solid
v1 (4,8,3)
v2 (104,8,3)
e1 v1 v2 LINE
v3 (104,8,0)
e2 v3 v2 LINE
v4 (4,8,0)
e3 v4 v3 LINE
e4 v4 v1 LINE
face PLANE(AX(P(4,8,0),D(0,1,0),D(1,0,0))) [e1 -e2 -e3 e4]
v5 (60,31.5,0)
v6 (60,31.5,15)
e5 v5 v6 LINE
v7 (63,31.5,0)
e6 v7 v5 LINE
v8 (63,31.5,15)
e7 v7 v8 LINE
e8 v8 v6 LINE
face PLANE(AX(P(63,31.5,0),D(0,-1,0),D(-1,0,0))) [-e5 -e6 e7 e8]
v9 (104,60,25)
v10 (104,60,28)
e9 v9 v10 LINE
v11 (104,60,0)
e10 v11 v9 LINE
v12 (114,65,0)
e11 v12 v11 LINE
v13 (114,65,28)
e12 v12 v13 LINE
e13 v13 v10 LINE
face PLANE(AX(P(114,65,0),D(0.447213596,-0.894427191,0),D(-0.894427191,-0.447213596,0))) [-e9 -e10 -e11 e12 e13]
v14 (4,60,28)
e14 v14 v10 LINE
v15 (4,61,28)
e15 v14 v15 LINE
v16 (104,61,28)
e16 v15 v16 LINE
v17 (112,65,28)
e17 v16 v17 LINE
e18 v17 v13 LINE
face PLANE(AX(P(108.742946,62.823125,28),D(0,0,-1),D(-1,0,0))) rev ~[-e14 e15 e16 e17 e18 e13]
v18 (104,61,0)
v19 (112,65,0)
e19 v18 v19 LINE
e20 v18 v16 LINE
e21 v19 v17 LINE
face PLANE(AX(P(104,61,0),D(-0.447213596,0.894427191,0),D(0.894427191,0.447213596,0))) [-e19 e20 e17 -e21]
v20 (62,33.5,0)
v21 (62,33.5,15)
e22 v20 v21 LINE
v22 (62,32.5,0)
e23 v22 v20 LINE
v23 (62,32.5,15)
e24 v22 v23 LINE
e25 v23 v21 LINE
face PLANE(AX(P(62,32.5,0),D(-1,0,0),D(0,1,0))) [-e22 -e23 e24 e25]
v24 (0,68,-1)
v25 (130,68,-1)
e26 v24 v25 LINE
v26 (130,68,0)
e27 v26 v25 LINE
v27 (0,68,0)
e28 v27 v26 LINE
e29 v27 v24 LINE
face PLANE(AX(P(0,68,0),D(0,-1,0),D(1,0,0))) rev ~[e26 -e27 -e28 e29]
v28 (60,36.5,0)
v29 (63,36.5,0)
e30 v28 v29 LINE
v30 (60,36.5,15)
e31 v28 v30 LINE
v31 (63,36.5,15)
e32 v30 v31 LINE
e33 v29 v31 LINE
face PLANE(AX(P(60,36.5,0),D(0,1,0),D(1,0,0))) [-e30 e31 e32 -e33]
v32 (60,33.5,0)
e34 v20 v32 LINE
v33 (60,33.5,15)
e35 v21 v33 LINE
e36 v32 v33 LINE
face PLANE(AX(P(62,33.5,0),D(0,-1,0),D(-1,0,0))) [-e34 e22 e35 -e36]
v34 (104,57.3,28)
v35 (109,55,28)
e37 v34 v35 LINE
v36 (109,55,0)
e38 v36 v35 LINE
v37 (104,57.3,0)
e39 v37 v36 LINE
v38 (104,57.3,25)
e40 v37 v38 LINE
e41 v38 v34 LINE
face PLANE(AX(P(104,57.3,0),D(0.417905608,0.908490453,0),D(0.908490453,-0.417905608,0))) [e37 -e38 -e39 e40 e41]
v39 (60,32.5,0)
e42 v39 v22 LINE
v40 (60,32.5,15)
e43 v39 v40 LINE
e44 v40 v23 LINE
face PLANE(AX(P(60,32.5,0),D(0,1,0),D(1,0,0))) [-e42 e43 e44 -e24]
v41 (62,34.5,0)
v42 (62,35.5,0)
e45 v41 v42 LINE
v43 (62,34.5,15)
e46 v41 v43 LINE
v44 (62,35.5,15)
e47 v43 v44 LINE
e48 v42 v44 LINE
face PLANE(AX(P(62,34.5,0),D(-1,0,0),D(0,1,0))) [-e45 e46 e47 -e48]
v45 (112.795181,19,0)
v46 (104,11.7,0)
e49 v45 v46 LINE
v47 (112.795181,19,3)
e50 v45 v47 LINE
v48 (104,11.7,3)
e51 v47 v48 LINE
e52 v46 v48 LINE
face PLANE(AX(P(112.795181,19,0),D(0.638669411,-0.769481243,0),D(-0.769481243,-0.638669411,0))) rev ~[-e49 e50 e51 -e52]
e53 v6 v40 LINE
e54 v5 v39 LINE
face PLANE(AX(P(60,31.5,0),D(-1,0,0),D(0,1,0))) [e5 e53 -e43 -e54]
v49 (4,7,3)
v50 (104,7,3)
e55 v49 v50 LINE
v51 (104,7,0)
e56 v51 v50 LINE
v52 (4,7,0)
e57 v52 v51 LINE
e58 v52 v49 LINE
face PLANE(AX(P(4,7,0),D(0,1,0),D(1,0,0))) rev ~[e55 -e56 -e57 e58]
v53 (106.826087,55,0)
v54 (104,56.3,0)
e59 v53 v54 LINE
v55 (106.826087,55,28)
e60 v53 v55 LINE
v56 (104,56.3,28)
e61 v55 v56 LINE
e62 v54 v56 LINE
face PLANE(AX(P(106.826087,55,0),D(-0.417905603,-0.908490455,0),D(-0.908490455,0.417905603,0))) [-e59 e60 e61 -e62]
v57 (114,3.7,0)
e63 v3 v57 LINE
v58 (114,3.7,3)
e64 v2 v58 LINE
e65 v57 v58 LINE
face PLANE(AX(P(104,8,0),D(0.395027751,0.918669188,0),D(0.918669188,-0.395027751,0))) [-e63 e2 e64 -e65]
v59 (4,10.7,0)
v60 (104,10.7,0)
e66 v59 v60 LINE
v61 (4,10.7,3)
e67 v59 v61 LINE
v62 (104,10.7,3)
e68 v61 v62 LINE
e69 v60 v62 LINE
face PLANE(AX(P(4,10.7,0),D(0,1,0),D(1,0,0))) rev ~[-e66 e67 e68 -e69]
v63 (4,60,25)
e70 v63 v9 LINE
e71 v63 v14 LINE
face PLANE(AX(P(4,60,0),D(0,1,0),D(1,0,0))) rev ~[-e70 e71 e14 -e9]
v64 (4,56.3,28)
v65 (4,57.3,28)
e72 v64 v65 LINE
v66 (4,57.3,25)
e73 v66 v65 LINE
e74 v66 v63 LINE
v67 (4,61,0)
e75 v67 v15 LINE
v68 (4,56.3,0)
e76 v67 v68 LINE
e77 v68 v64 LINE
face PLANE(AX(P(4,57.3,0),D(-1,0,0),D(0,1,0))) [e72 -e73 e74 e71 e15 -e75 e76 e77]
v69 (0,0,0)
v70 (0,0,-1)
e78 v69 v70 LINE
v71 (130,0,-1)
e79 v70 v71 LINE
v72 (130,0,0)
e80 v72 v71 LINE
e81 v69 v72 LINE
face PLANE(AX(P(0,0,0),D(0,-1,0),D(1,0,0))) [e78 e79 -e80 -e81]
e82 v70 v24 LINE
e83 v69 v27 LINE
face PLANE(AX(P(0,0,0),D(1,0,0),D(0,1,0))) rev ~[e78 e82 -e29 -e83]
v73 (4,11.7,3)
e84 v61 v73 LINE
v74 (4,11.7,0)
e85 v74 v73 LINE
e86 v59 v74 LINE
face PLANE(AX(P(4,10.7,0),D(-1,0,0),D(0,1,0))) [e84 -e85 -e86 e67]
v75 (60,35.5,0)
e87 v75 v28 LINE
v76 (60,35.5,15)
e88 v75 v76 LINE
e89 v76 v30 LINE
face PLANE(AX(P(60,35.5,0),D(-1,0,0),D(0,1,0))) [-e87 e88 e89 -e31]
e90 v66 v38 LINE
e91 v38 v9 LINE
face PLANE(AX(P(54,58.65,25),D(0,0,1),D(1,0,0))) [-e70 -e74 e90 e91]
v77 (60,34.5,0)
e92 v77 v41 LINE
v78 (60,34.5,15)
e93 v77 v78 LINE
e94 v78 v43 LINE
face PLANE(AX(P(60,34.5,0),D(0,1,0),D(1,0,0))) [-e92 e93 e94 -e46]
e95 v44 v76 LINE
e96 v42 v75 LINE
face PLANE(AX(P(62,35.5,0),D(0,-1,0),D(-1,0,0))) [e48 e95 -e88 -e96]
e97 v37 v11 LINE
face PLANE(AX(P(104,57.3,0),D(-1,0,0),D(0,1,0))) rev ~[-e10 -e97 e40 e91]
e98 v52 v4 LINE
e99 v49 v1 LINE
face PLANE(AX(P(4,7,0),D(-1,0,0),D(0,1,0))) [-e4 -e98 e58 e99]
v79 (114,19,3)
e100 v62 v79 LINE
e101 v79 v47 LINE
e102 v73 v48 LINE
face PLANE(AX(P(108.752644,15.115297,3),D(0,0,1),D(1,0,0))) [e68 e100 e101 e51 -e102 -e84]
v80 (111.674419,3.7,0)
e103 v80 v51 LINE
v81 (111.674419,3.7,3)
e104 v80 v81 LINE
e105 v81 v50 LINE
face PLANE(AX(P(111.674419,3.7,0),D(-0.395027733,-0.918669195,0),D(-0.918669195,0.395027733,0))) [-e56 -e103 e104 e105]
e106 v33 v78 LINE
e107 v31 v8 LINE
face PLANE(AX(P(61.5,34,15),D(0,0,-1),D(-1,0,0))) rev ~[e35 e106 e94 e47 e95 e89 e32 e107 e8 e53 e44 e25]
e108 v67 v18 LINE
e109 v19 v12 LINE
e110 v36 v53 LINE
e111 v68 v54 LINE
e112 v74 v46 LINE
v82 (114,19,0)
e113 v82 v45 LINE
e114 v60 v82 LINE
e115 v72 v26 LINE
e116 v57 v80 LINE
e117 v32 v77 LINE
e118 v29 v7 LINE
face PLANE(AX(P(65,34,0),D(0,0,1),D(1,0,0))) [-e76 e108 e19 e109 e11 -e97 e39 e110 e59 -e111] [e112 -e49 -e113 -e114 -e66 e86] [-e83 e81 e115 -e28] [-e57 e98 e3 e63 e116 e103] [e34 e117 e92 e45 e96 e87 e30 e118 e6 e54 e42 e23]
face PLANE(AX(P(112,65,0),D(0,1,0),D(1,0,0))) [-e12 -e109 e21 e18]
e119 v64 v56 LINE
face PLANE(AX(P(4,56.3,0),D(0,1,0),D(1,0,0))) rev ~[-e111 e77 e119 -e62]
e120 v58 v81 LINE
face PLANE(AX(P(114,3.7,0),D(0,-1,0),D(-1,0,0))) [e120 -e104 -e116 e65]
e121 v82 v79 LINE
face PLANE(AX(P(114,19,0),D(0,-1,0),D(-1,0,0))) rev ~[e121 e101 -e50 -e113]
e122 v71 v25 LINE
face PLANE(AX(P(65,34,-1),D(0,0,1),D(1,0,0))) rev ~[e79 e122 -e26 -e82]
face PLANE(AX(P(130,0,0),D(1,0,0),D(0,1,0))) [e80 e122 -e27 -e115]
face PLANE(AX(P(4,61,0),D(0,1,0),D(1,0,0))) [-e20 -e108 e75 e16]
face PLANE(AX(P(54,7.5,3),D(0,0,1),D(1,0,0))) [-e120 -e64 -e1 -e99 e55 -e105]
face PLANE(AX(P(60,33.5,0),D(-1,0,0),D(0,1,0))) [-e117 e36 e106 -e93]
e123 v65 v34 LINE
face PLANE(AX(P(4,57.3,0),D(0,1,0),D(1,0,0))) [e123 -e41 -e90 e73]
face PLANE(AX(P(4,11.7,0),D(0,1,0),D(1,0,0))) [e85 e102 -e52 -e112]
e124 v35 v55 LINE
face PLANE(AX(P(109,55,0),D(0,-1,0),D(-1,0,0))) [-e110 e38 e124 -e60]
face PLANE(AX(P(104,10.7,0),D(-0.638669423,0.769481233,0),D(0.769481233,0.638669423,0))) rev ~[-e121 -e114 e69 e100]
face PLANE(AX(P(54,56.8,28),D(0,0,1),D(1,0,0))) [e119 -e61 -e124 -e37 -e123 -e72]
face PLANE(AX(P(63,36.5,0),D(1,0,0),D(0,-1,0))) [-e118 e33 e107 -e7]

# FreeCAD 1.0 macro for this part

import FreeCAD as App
import Part
import Sketcher
from FreeCAD import Vector

doc = App.newDocument("Part")
body = doc.addObject("PartDesign::Body", "Body")

# Sketch on XY plane
sketch1 = doc.addObject("Sketcher::SketchObject", "Sketch")
body.addObject(sketch1)
sketch1.AttachmentSupport = (doc.XY_Plane, [""])
sketch1.MapMode = "FlatFace"
sketch1.addGeometry([
    Part.LineSegment(Vector(0, 68, 0), Vector(0, 0, 0)),
    Part.LineSegment(Vector(0, 0, 0), Vector(130, 0, 0)),
    Part.LineSegment(Vector(130, 0, 0), Vector(130, 68, 0)),
    Part.LineSegment(Vector(130, 68, 0), Vector(0, 68, 0)),
], False)
sketch1.addConstraint([
    Sketcher.Constraint("Coincident", 0, 2, 1, 1),
    Sketcher.Constraint("Coincident", 1, 2, 2, 1),
    Sketcher.Constraint("Coincident", 2, 2, 3, 1),
    Sketcher.Constraint("Coincident", 3, 2, 0, 1),
    Sketcher.Constraint("Vertical", 0),
    Sketcher.Constraint("Horizontal", 1),
    Sketcher.Constraint("Vertical", 2),
    Sketcher.Constraint("Horizontal", 3),
    Sketcher.Constraint("Coincident", 0, 2, -1, 1),
    Sketcher.Constraint("DistanceX", 1, 1, 1, 2, 130.0),
    Sketcher.Constraint("DistanceY", 0, 2, 0, 1, 68.0),
])
pad1 = doc.addObject("PartDesign::Pad", "Pad")
body.addObject(pad1)
pad1.Profile = sketch1
pad1.Length = 1
pad1.Reversed = True

# Sketch on XY plane
sketch2 = doc.addObject("Sketcher::SketchObject", "Sketch001")
body.addObject(sketch2)
sketch2.AttachmentSupport = (doc.XY_Plane, [""])
sketch2.MapMode = "FlatFace"
sketch2.addGeometry([
    Part.LineSegment(Vector(4, 57.3, 0), Vector(4, 56.3, 0)),
    Part.LineSegment(Vector(4, 56.3, 0), Vector(104, 56.3, 0)),
    Part.LineSegment(Vector(104, 56.3, 0), Vector(104, 57.3, 0)),
    Part.LineSegment(Vector(104, 57.3, 0), Vector(4, 57.3, 0)),
], False)
sketch2.addConstraint([
    Sketcher.Constraint("Coincident", 0, 2, 1, 1),
    Sketcher.Constraint("Coincident", 1, 2, 2, 1),
    Sketcher.Constraint("Coincident", 2, 2, 3, 1),
    Sketcher.Constraint("Coincident", 3, 2, 0, 1),
    Sketcher.Constraint("Vertical", 0),
    Sketcher.Constraint("Horizontal", 1),
    Sketcher.Constraint("Vertical", 2),
    Sketcher.Constraint("Horizontal", 3),
    Sketcher.Constraint("DistanceX", 1, 1, 1, 2, 100.0),
    Sketcher.Constraint("DistanceY", 0, 2, 0, 1, 1.0),
    Sketcher.Constraint("DistanceX", -1, 1, 0, 2, 4.0),
    Sketcher.Constraint("DistanceY", -1, 1, 0, 2, 56.3),
])
pad2 = doc.addObject("PartDesign::Pad", "Pad001")
body.addObject(pad2)
pad2.Profile = sketch2
pad2.Length = 28

# Sketch on XY plane
sketch3 = doc.addObject("Sketcher::SketchObject", "Sketch002")
body.addObject(sketch3)
sketch3.AttachmentSupport = (doc.XY_Plane, [""])
sketch3.MapMode = "FlatFace"
sketch3.addGeometry([
    Part.LineSegment(Vector(4, 61, 0), Vector(4, 60, 0)),
    Part.LineSegment(Vector(4, 60, 0), Vector(104, 60, 0)),
    Part.LineSegment(Vector(104, 60, 0), Vector(104, 61, 0)),
    Part.LineSegment(Vector(104, 61, 0), Vector(4, 61, 0)),
], False)
sketch3.addConstraint([
    Sketcher.Constraint("Coincident", 0, 2, 1, 1),
    Sketcher.Constraint("Coincident", 1, 2, 2, 1),
    Sketcher.Constraint("Coincident", 2, 2, 3, 1),
    Sketcher.Constraint("Coincident", 3, 2, 0, 1),
    Sketcher.Constraint("Vertical", 0),
    Sketcher.Constraint("Horizontal", 1),
    Sketcher.Constraint("Vertical", 2),
    Sketcher.Constraint("Horizontal", 3),
    Sketcher.Constraint("DistanceX", 1, 1, 1, 2, 100.0),
    Sketcher.Constraint("DistanceY", 0, 2, 0, 1, 1.0),
    Sketcher.Constraint("DistanceX", -1, 1, 0, 2, 4.0),
    Sketcher.Constraint("DistanceY", -1, 1, 0, 2, 60.0),
])
pad3 = doc.addObject("PartDesign::Pad", "Pad002")
body.addObject(pad3)
pad3.Profile = sketch3
pad3.Length = 28

# Sketch on XY plane
sketch4 = doc.addObject("Sketcher::SketchObject", "Sketch003")
body.addObject(sketch4)
sketch4.AttachmentSupport = (doc.XY_Plane, [""])
sketch4.MapMode = "FlatFace"
sketch4.addGeometry([
    Part.LineSegment(Vector(112, 65, 0), Vector(104, 61, 0)),  # 0
    Part.LineSegment(Vector(104, 61, 0), Vector(104, 60, 0)),  # 1
    Part.LineSegment(Vector(104, 60, 0), Vector(114, 65, 0)),  # 2
    Part.LineSegment(Vector(114, 65, 0), Vector(112, 65, 0)),  # 3
    Part.LineSegment(Vector(109, 55, 0), Vector(104, 57.3, 0)),  # 4
    Part.LineSegment(Vector(104, 57.3, 0), Vector(104, 56.3, 0)),  # 5
    Part.LineSegment(Vector(104, 56.3, 0), Vector(106.8, 55, 0)),  # 6
    Part.LineSegment(Vector(106.8, 55, 0), Vector(109, 55, 0)),  # 7
], False)
sketch4.addConstraint([
    Sketcher.Constraint("Coincident", 0, 2, 1, 1),
    Sketcher.Constraint("Coincident", 1, 2, 2, 1),
    Sketcher.Constraint("Coincident", 2, 2, 3, 1),
    Sketcher.Constraint("Coincident", 3, 2, 0, 1),
    Sketcher.Constraint("Coincident", 4, 2, 5, 1),
    Sketcher.Constraint("Coincident", 5, 2, 6, 1),
    Sketcher.Constraint("Coincident", 6, 2, 7, 1),
    Sketcher.Constraint("Coincident", 7, 2, 4, 1),
    Sketcher.Constraint("Vertical", 1),
    Sketcher.Constraint("Horizontal", 3),
    Sketcher.Constraint("Vertical", 5),
    Sketcher.Constraint("Horizontal", 7),
    Sketcher.Constraint("Parallel", 0, 2),
    Sketcher.Constraint("Parallel", 4, 6),
    Sketcher.Constraint("Vertical", 1, 2, 4, 2),
    Sketcher.Constraint("Equal", 1, 5),
    Sketcher.Constraint("DistanceX", 3, 2, 3, 1, 2.0),
    Sketcher.Constraint("DistanceY", 1, 2, 1, 1, 1.0),
    Sketcher.Constraint("DistanceX", -1, 1, 0, 2, 104.0),
    Sketcher.Constraint("DistanceY", -1, 1, 0, 2, 61.0),
    Sketcher.Constraint("DistanceX", -1, 1, 2, 2, 114.0),
    Sketcher.Constraint("DistanceY", -1, 1, 6, 2, 55.0),
    Sketcher.Constraint("DistanceX", -1, 1, 7, 2, 109.0),
    Sketcher.Constraint("DistanceY", -1, 1, 4, 2, 57.3),
])
pad4 = doc.addObject("PartDesign::Pad", "Pad003")
body.addObject(pad4)
pad4.Profile = sketch4
pad4.Length = 28

# Sketch on XY plane
sketch5 = doc.addObject("Sketcher::SketchObject", "Sketch004")
body.addObject(sketch5)
sketch5.AttachmentSupport = (doc.XY_Plane, [""])
sketch5.MapMode = "FlatFace"
sketch5.addGeometry([
    Part.LineSegment(Vector(4, 60, 0), Vector(4, 57.3, 0)),
    Part.LineSegment(Vector(4, 57.3, 0), Vector(104, 57.3, 0)),
    Part.LineSegment(Vector(104, 57.3, 0), Vector(104, 60, 0)),
    Part.LineSegment(Vector(104, 60, 0), Vector(4, 60, 0)),
], False)
sketch5.addConstraint([
    Sketcher.Constraint("Coincident", 0, 2, 1, 1),
    Sketcher.Constraint("Coincident", 1, 2, 2, 1),
    Sketcher.Constraint("Coincident", 2, 2, 3, 1),
    Sketcher.Constraint("Coincident", 3, 2, 0, 1),
    Sketcher.Constraint("Vertical", 0),
    Sketcher.Constraint("Horizontal", 1),
    Sketcher.Constraint("Vertical", 2),
    Sketcher.Constraint("Horizontal", 3),
    Sketcher.Constraint("DistanceX", 1, 1, 1, 2, 100.0),
    Sketcher.Constraint("DistanceY", 0, 2, 0, 1, 2.7),
    Sketcher.Constraint("DistanceX", -1, 1, 0, 2, 4.0),
    Sketcher.Constraint("DistanceY", -1, 1, 2, 2, 60.0),
])
pad5 = doc.addObject("PartDesign::Pad", "Pad004")
body.addObject(pad5)
pad5.Profile = sketch5
pad5.Length = 25

# Sketch on XY plane
sketch6 = doc.addObject("Sketcher::SketchObject", "Sketch005")
body.addObject(sketch6)
sketch6.AttachmentSupport = (doc.XY_Plane, [""])
sketch6.MapMode = "FlatFace"
sketch6.addGeometry([
    Part.LineSegment(Vector(4, 8, 0), Vector(4, 7, 0)),
    Part.LineSegment(Vector(4, 7, 0), Vector(104, 7, 0)),
    Part.LineSegment(Vector(104, 7, 0), Vector(104, 8, 0)),
    Part.LineSegment(Vector(104, 8, 0), Vector(4, 8, 0)),
], False)
sketch6.addConstraint([
    Sketcher.Constraint("Coincident", 0, 2, 1, 1),
    Sketcher.Constraint("Coincident", 1, 2, 2, 1),
    Sketcher.Constraint("Coincident", 2, 2, 3, 1),
    Sketcher.Constraint("Coincident", 3, 2, 0, 1),
    Sketcher.Constraint("Vertical", 0),
    Sketcher.Constraint("Horizontal", 1),
    Sketcher.Constraint("Vertical", 2),
    Sketcher.Constraint("Horizontal", 3),
    Sketcher.Constraint("DistanceX", 1, 1, 1, 2, 100.0),
    Sketcher.Constraint("DistanceY", 0, 2, 0, 1, 1.0),
    Sketcher.Constraint("DistanceX", -1, 1, 0, 2, 4.0),
    Sketcher.Constraint("DistanceY", -1, 1, 0, 2, 7.0),
])
pad6 = doc.addObject("PartDesign::Pad", "Pad005")
body.addObject(pad6)
pad6.Profile = sketch6
pad6.Length = 3

# Sketch on XY plane
sketch7 = doc.addObject("Sketcher::SketchObject", "Sketch006")
body.addObject(sketch7)
sketch7.AttachmentSupport = (doc.XY_Plane, [""])
sketch7.MapMode = "FlatFace"
sketch7.addGeometry([
    Part.LineSegment(Vector(4, 11.7, 0), Vector(4, 10.7, 0)),
    Part.LineSegment(Vector(4, 10.7, 0), Vector(104, 10.7, 0)),
    Part.LineSegment(Vector(104, 10.7, 0), Vector(104, 11.7, 0)),
    Part.LineSegment(Vector(104, 11.7, 0), Vector(4, 11.7, 0)),
], False)
sketch7.addConstraint([
    Sketcher.Constraint("Coincident", 0, 2, 1, 1),
    Sketcher.Constraint("Coincident", 1, 2, 2, 1),
    Sketcher.Constraint("Coincident", 2, 2, 3, 1),
    Sketcher.Constraint("Coincident", 3, 2, 0, 1),
    Sketcher.Constraint("Vertical", 0),
    Sketcher.Constraint("Horizontal", 1),
    Sketcher.Constraint("Vertical", 2),
    Sketcher.Constraint("Horizontal", 3),
    Sketcher.Constraint("DistanceX", 1, 1, 1, 2, 100.0),
    Sketcher.Constraint("DistanceY", 0, 2, 0, 1, 1.0),
    Sketcher.Constraint("DistanceX", -1, 1, 0, 2, 4.0),
    Sketcher.Constraint("DistanceY", -1, 1, 0, 2, 10.7),
])
pad7 = doc.addObject("PartDesign::Pad", "Pad006")
body.addObject(pad7)
pad7.Profile = sketch7
pad7.Length = 3

# Sketch on XY plane
sketch8 = doc.addObject("Sketcher::SketchObject", "Sketch007")
body.addObject(sketch8)
sketch8.AttachmentSupport = (doc.XY_Plane, [""])
sketch8.MapMode = "FlatFace"
sketch8.addGeometry([
    Part.LineSegment(Vector(104, 10.7, 0), Vector(114, 19, 0)),  # 0
    Part.LineSegment(Vector(114, 19, 0), Vector(112.8, 19, 0)),  # 1
    Part.LineSegment(Vector(112.8, 19, 0), Vector(104, 11.7, 0)),  # 2
    Part.LineSegment(Vector(104, 11.7, 0), Vector(104, 10.7, 0)),  # 3
    Part.LineSegment(Vector(114, 3.7, 0), Vector(104, 8, 0)),  # 4
    Part.LineSegment(Vector(104, 8, 0), Vector(104, 7, 0)),  # 5
    Part.LineSegment(Vector(104, 7, 0), Vector(111.7, 3.7, 0)),  # 6
    Part.LineSegment(Vector(111.7, 3.7, 0), Vector(114, 3.7, 0)),  # 7
], False)
sketch8.addConstraint([
    Sketcher.Constraint("Coincident", 0, 2, 1, 1),
    Sketcher.Constraint("Coincident", 1, 2, 2, 1),
    Sketcher.Constraint("Coincident", 2, 2, 3, 1),
    Sketcher.Constraint("Coincident", 3, 2, 0, 1),
    Sketcher.Constraint("Coincident", 4, 2, 5, 1),
    Sketcher.Constraint("Coincident", 5, 2, 6, 1),
    Sketcher.Constraint("Coincident", 6, 2, 7, 1),
    Sketcher.Constraint("Coincident", 7, 2, 4, 1),
    Sketcher.Constraint("Horizontal", 1),
    Sketcher.Constraint("Vertical", 3),
    Sketcher.Constraint("Vertical", 5),
    Sketcher.Constraint("Horizontal", 7),
    Sketcher.Constraint("Parallel", 0, 2),
    Sketcher.Constraint("Parallel", 4, 6),
    Sketcher.Constraint("Vertical", 3, 2, 4, 2),
    Sketcher.Constraint("Vertical", 0, 2, 7, 2),
    Sketcher.Constraint("Equal", 3, 5),
    Sketcher.Constraint("DistanceY", 3, 2, 3, 1, 1.0),
    Sketcher.Constraint("DistanceX", -1, 1, 0, 2, 114.0),
    Sketcher.Constraint("DistanceY", -1, 1, 0, 2, 19.0),
    Sketcher.Constraint("DistanceX", -1, 1, 2, 2, 104.0),
    Sketcher.Constraint("DistanceY", -1, 1, 4, 2, 8.0),
    Sketcher.Constraint("DistanceY", 6, 2, 3, 2, 7.0),
    Sketcher.Constraint("DistanceY", -1, 1, 2, 2, 11.7),
])
pad8 = doc.addObject("PartDesign::Pad", "Pad007")
body.addObject(pad8)
pad8.Profile = sketch8
pad8.Length = 3

# Sketch on XY plane
sketch9 = doc.addObject("Sketcher::SketchObject", "Sketch008")
body.addObject(sketch9)
sketch9.AttachmentSupport = (doc.XY_Plane, [""])
sketch9.MapMode = "FlatFace"
sketch9.addGeometry([
    Part.LineSegment(Vector(63, 36.5, 0), Vector(60, 36.5, 0)),  # 0
    Part.LineSegment(Vector(60, 36.5, 0), Vector(60, 35.5, 0)),  # 1
    Part.LineSegment(Vector(60, 35.5, 0), Vector(62, 35.5, 0)),  # 2
    Part.LineSegment(Vector(62, 35.5, 0), Vector(62, 34.5, 0)),  # 3
    Part.LineSegment(Vector(62, 34.5, 0), Vector(60, 34.5, 0)),  # 4
    Part.LineSegment(Vector(60, 34.5, 0), Vector(60, 33.5, 0)),  # 5
    Part.LineSegment(Vector(60, 33.5, 0), Vector(62, 33.5, 0)),  # 6
    Part.LineSegment(Vector(62, 33.5, 0), Vector(62, 32.5, 0)),  # 7
    Part.LineSegment(Vector(62, 32.5, 0), Vector(60, 32.5, 0)),  # 8
    Part.LineSegment(Vector(60, 32.5, 0), Vector(60, 31.5, 0)),  # 9
    Part.LineSegment(Vector(60, 31.5, 0), Vector(63, 31.5, 0)),  # 10
    Part.LineSegment(Vector(63, 31.5, 0), Vector(63, 36.5, 0)),  # 11
], False)
sketch9.addConstraint([
    Sketcher.Constraint("Coincident", 0, 2, 1, 1),
    Sketcher.Constraint("Coincident", 1, 2, 2, 1),
    Sketcher.Constraint("Coincident", 2, 2, 3, 1),
    Sketcher.Constraint("Coincident", 3, 2, 4, 1),
    Sketcher.Constraint("Coincident", 4, 2, 5, 1),
    Sketcher.Constraint("Coincident", 5, 2, 6, 1),
    Sketcher.Constraint("Coincident", 6, 2, 7, 1),
    Sketcher.Constraint("Coincident", 7, 2, 8, 1),
    Sketcher.Constraint("Coincident", 8, 2, 9, 1),
    Sketcher.Constraint("Coincident", 9, 2, 10, 1),
    Sketcher.Constraint("Coincident", 10, 2, 11, 1),
    Sketcher.Constraint("Coincident", 11, 2, 0, 1),
    Sketcher.Constraint("Horizontal", 0),
    Sketcher.Constraint("Vertical", 1),
    Sketcher.Constraint("Horizontal", 2),
    Sketcher.Constraint("Vertical", 3),
    Sketcher.Constraint("Horizontal", 4),
    Sketcher.Constraint("Vertical", 5),
    Sketcher.Constraint("Horizontal", 6),
    Sketcher.Constraint("Vertical", 7),
    Sketcher.Constraint("Horizontal", 8),
    Sketcher.Constraint("Vertical", 9),
    Sketcher.Constraint("Horizontal", 10),
    Sketcher.Constraint("Vertical", 11),
    Sketcher.Constraint("Vertical", 1, 2, 4, 2),
    Sketcher.Constraint("Vertical", 3, 2, 6, 2),
    Sketcher.Constraint("Vertical", 5, 2, 8, 2),
    Sketcher.Constraint("Equal", 1, 3),
    Sketcher.Constraint("Equal", 3, 5),
    Sketcher.Constraint("Equal", 5, 7),
    Sketcher.Constraint("Equal", 7, 9),
    Sketcher.Constraint("DistanceX", 0, 2, 0, 1, 3.0),
    Sketcher.Constraint("DistanceX", 2, 1, 2, 2, 2.0),
    Sketcher.Constraint("DistanceY", 1, 2, 1, 1, 1.0),
    Sketcher.Constraint("DistanceX", -1, 1, 0, 2, 60.0),
    Sketcher.Constraint("DistanceY", -1, 1, 0, 2, 36.5),
])
pad9 = doc.addObject("PartDesign::Pad", "Pad008")
body.addObject(pad9)
pad9.Profile = sketch9
pad9.Length = 15

doc.recompute()
